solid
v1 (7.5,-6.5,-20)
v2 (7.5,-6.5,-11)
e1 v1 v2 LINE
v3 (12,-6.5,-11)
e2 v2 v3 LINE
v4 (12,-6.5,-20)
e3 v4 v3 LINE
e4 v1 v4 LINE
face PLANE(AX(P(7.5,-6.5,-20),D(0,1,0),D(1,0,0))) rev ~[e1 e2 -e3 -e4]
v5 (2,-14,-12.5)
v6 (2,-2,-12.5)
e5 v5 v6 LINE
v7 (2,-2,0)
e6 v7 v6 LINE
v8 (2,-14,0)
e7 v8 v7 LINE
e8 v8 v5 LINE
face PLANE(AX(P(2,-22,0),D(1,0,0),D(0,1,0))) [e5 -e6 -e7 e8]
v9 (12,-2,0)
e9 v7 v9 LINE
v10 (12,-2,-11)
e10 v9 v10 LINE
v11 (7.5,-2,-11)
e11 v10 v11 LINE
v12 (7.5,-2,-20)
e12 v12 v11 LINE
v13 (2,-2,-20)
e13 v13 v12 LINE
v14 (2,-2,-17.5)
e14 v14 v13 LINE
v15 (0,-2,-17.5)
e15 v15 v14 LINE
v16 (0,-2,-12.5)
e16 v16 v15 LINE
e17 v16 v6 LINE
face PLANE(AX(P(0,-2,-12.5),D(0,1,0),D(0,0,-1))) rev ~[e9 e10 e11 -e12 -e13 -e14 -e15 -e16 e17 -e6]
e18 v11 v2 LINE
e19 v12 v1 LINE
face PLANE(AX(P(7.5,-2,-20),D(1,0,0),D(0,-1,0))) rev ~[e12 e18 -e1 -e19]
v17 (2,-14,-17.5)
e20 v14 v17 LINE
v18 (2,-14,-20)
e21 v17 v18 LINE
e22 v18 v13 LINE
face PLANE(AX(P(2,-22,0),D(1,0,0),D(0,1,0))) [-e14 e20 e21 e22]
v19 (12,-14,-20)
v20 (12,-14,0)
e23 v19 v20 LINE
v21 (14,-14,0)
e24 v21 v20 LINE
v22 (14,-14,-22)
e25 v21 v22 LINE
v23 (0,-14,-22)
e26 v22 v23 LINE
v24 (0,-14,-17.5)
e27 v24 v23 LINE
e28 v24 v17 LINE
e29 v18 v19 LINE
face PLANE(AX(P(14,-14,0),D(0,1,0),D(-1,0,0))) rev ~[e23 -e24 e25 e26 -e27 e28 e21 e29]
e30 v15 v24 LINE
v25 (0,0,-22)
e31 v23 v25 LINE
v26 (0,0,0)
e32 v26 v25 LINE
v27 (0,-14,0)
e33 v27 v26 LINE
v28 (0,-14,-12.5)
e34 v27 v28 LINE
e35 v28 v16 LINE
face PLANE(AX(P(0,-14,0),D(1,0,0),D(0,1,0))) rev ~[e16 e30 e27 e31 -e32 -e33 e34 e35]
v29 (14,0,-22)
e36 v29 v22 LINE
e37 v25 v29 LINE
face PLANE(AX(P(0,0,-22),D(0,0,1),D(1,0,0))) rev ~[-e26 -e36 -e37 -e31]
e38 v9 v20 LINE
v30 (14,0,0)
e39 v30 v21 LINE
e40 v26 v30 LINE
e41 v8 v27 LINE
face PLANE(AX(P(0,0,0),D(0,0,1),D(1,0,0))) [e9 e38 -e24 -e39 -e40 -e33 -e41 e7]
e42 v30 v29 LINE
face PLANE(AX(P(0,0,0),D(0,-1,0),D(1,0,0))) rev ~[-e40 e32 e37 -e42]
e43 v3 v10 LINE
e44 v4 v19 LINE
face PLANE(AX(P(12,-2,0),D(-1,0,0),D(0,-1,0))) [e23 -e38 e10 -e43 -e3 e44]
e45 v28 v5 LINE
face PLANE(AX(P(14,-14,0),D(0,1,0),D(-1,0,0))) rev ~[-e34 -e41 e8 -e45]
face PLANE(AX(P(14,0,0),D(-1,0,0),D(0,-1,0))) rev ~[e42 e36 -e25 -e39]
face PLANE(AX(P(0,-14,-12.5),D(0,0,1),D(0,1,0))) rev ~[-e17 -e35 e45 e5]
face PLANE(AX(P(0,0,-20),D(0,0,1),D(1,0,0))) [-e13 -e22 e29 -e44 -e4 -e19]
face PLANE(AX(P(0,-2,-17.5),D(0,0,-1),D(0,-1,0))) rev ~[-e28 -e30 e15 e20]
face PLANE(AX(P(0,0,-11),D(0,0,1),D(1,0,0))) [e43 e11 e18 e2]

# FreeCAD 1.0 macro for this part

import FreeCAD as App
import Part
import Sketcher
from FreeCAD import Vector


def add_polygon(sketch, points):
    """Adds a closed chain of lines whose ends are joined by coincident constraints."""
    first, n = sketch.GeometryCount, len(points)
    for a, b in zip(points, points[1:] + points[:1]):
        sketch.addGeometry(Part.LineSegment(App.Vector(*a, 0), App.Vector(*b, 0)), False)
    for i in range(n):
        sketch.addConstraint(Sketcher.Constraint("Coincident", first + i, 2, first + (i + 1) % n, 1))

doc = App.newDocument("Part")
params = doc.addObject("Spreadsheet::Sheet", "Params")
for row, (alias, value) in enumerate([
    ("sketch1_width", "14 mm"),
    ("pad1_length", "22 mm"),
    ("sketch2_width", "10 mm"),
    ("sketch2_height", "20 mm"),
    ("pocket1_length", "20 mm"),
    ("sketch3_width", "12 mm"),
    ("sketch3_height", "5 mm"),
    ("pocket2_length", "2 mm"),
    ("sketch4_width", "4.5 mm"),
    ("pad2_length", "9 mm"),
], start=1):
    params.set(f"A{row}", alias)
    params.set(f"B{row}", "=" + value)
    params.setAlias(f"B{row}", alias)

body = doc.addObject("PartDesign::Body", "Body")

sketch1 = doc.addObject("Sketcher::SketchObject", "Sketch")
body.addObject(sketch1)
sketch1.AttachmentSupport = (doc.XY_Plane, [""])
sketch1.MapMode = "FlatFace"
add_polygon(sketch1, [(14, 0), (0, 0), (0, -14), (14, -14)])
sketch1.addConstraint([
    Sketcher.Constraint("Horizontal", 0),
    Sketcher.Constraint("Vertical", 1),
    Sketcher.Constraint("Horizontal", 2),
    Sketcher.Constraint("Vertical", 3),
    Sketcher.Constraint("Coincident", 0, 2, -1, 1),
    Sketcher.Constraint("Equal", 2, 1),
    Sketcher.Constraint("DistanceX", 0, 2, 0, 1, 14.0),
])
sketch1.setExpression("Constraints[10]", "Params.sketch1_width")
pad1 = doc.addObject("PartDesign::Pad", "Pad")
body.addObject(pad1)
pad1.Profile = sketch1
pad1.setExpression("Length", "Params.pad1_length")
pad1.Reversed = True

sketch2 = doc.addObject("Sketcher::SketchObject", "Sketch001")
body.addObject(sketch2)
sketch2.AttachmentSupport = (doc.XY_Plane, [""])
sketch2.MapMode = "FlatFace"
add_polygon(sketch2, [(12, -2), (2, -2), (2, -22), (12, -22)])
sketch2.addConstraint([
    Sketcher.Constraint("Horizontal", 0),
    Sketcher.Constraint("Vertical", 1),
    Sketcher.Constraint("Horizontal", 2),
    Sketcher.Constraint("Vertical", 3),
    Sketcher.Constraint("DistanceX", 0, 2, 0, 1, 10.0),
    Sketcher.Constraint("DistanceY", 1, 2, 1, 1, 20.0),
    Sketcher.Constraint("DistanceX", -1, 1, 0, 2, 2.0),
    Sketcher.Constraint("DistanceY", 0, 2, -1, 1, 2.0),
])
sketch2.setExpression("Constraints[8]", "Params.sketch2_width")
sketch2.setExpression("Constraints[9]", "Params.sketch2_height")
pocket1 = doc.addObject("PartDesign::Pocket", "Pocket")
body.addObject(pocket1)
pocket1.Profile = sketch2
pocket1.setExpression("Length", "Params.pocket1_length")

sketch3 = doc.addObject("Sketcher::SketchObject", "Sketch002")
body.addObject(sketch3)
sketch3.AttachmentSupport = (doc.YZ_Plane, [""])
sketch3.MapMode = "FlatFace"
add_polygon(sketch3, [(-14, -12), (-2, -12), (-2, -18), (-14, -18)])
sketch3.addConstraint([
    Sketcher.Constraint("Horizontal", 0),
    Sketcher.Constraint("Vertical", 1),
    Sketcher.Constraint("Horizontal", 2),
    Sketcher.Constraint("Vertical", 3),
    Sketcher.Constraint("DistanceX", 0, 1, 0, 2, 12.0),
    Sketcher.Constraint("DistanceY", 1, 2, 1, 1, 5.0),
    Sketcher.Constraint("DistanceX", 0, 2, -1, 1, 2.0),
    Sketcher.Constraint("DistanceY", 0, 2, -1, 1, 12.5),
])
sketch3.setExpression("Constraints[8]", "Params.sketch3_width")
sketch3.setExpression("Constraints[9]", "Params.sketch3_height")
pocket2 = doc.addObject("PartDesign::Pocket", "Pocket001")
body.addObject(pocket2)
pocket2.Profile = sketch3
pocket2.setExpression("Length", "Params.pocket2_length")
pocket2.Reversed = True

sketch4 = doc.addObject("Sketcher::SketchObject", "Sketch003")
body.addObject(sketch4)
sketch4.AttachmentSupport = (doc.XY_Plane, [""])
sketch4.MapMode = "FlatFace"
sketch4.AttachmentOffset = App.Placement(Vector(0, 0, -20), App.Rotation())
add_polygon(sketch4, [(12, -6.5), (12, -2), (7.5, -2), (7.5, -6.5)])
sketch4.addConstraint([
    Sketcher.Constraint("Vertical", 0),
    Sketcher.Constraint("Horizontal", 1),
    Sketcher.Constraint("Vertical", 2),
    Sketcher.Constraint("Horizontal", 3),
    Sketcher.Constraint("Equal", 3, 0),
    Sketcher.Constraint("DistanceX", 1, 2, 1, 1, 4.5),
    Sketcher.Constraint("DistanceX", -1, 1, 0, 2, 12.0),
    Sketcher.Constraint("DistanceY", 0, 2, -1, 1, 2.0),
])
sketch4.setExpression("Constraints[9]", "Params.sketch4_width")
pad2 = doc.addObject("PartDesign::Pad", "Pad001")
body.addObject(pad2)
pad2.Profile = sketch4
pad2.setExpression("Length", "Params.pad2_length")

doc.recompute()
